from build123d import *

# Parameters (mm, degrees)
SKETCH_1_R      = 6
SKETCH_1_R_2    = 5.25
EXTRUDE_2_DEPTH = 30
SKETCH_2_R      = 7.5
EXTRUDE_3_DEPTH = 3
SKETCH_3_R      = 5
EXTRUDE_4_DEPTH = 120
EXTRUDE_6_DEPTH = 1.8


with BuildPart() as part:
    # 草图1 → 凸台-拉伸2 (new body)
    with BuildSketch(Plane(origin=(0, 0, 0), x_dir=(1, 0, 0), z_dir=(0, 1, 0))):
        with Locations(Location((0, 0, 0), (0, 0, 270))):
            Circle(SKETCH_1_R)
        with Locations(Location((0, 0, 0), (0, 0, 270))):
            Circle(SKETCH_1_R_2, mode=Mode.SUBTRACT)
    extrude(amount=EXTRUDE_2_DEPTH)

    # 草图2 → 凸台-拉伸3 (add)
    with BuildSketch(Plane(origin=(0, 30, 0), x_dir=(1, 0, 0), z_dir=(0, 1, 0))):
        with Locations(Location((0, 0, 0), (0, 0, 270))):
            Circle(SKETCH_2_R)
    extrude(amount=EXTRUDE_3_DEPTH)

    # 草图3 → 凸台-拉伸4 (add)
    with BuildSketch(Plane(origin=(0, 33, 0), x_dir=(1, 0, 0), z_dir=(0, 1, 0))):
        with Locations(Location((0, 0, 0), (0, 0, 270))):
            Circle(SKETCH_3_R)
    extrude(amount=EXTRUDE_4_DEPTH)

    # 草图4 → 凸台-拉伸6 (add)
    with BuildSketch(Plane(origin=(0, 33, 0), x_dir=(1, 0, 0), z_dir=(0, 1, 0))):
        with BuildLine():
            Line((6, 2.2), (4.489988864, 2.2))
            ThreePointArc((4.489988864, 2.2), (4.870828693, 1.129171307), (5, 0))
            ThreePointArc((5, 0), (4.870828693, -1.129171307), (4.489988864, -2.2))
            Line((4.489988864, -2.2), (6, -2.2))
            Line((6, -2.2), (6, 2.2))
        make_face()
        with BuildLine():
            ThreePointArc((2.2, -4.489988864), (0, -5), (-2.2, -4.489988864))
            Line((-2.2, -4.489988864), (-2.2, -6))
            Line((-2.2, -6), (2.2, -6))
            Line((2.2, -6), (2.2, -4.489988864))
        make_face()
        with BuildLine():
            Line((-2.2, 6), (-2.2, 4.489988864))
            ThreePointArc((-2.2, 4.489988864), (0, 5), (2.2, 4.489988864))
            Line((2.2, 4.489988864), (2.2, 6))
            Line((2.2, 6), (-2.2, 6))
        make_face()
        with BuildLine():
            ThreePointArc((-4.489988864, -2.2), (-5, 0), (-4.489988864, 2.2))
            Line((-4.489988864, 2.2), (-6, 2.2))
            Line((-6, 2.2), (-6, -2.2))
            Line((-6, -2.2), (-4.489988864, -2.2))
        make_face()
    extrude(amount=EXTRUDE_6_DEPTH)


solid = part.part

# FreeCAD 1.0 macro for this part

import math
import FreeCAD as App
import Part
import Sketcher

doc = App.newDocument("Part")
body = doc.addObject("PartDesign::Body", "Body")

# Sketch on XZ plane
sketch1 = body.newObject("Sketcher::SketchObject", "Sketch")
sketch1.AttachmentSupport = (doc.getObject("XZ_Plane"), [""])
sketch1.MapMode = "FlatFace"
sketch1.addGeometry(Part.Circle(App.Vector(0, 0, 0), App.Vector(0, 0, 1), 6), False)
sketch1.addGeometry(Part.Circle(App.Vector(0, 0, 0), App.Vector(0, 0, 1), 5), False)
sketch1.addConstraint(Sketcher.Constraint("Coincident", 0, 3, -1, 1))
sketch1.addConstraint(Sketcher.Constraint("Coincident", 1, 3, -1, 1))
sketch1.addConstraint(Sketcher.Constraint("Diameter", 0, 12.0))
sketch1.addConstraint(Sketcher.Constraint("Diameter", 1, 10.5))
pad1 = body.newObject("PartDesign::Pad", "Pad")
pad1.Profile = sketch1
pad1.Length = 30
pad1.Reversed = True

# Sketch on XZ plane
sketch2 = body.newObject("Sketcher::SketchObject", "Sketch001")
sketch2.AttachmentSupport = (doc.getObject("XZ_Plane"), [""])
sketch2.MapMode = "FlatFace"
sketch2.AttachmentOffset = App.Placement(App.Vector(0, 0, -30), App.Rotation())
sketch2.addGeometry(Part.Circle(App.Vector(0, 0, 0), App.Vector(0, 0, 1), 8), False)
sketch2.addConstraint(Sketcher.Constraint("Coincident", 0, 3, -1, 1))
sketch2.addConstraint(Sketcher.Constraint("Diameter", 0, 15.0))
pad2 = body.newObject("PartDesign::Pad", "Pad001")
pad2.Profile = sketch2
pad2.Length = 3
pad2.Reversed = True

# Sketch on XZ plane
sketch3 = body.newObject("Sketcher::SketchObject", "Sketch002")
sketch3.AttachmentSupport = (doc.getObject("XZ_Plane"), [""])
sketch3.MapMode = "FlatFace"
sketch3.AttachmentOffset = App.Placement(App.Vector(0, 0, -33), App.Rotation())
sketch3.addGeometry(Part.Circle(App.Vector(0, 0, 0), App.Vector(0, 0, 1), 5), False)
sketch3.addConstraint(Sketcher.Constraint("Coincident", 0, 3, -1, 1))
sketch3.addConstraint(Sketcher.Constraint("Diameter", 0, 10.0))
pad3 = body.newObject("PartDesign::Pad", "Pad002")
pad3.Profile = sketch3
pad3.Length = 120
pad3.Reversed = True

# Sketch on XZ plane
sketch4 = body.newObject("Sketcher::SketchObject", "Sketch003")
sketch4.AttachmentSupport = (doc.getObject("XZ_Plane"), [""])
sketch4.MapMode = "FlatFace"
sketch4.AttachmentOffset = App.Placement(App.Vector(0, 0, -33), App.Rotation())
sketch4.addGeometry(Part.LineSegment(App.Vector(6, -2.2, 0), App.Vector(4.5, -2.2, 0)), False)
sketch4.addGeometry(Part.ArcOfCircle(Part.Circle(App.Vector(0, 0, 0), App.Vector(0, 0, 1), 5), math.radians(-26), math.radians(0)), False)
sketch4.addGeometry(Part.ArcOfCircle(Part.Circle(App.Vector(0, 0, 0), App.Vector(0, 0, 1), 5), math.radians(0), math.radians(26)), False)
sketch4.addGeometry(Part.LineSegment(App.Vector(4.5, 2.2, 0), App.Vector(6, 2.2, 0)), False)
sketch4.addGeometry(Part.LineSegment(App.Vector(6, 2.2, 0), App.Vector(6, -2.2, 0)), False)
sketch4.addGeometry(Part.ArcOfCircle(Part.Circle(App.Vector(0, 0, 0), App.Vector(0, 0, 1), 5), math.radians(64), math.radians(116)), False)
sketch4.addGeometry(Part.LineSegment(App.Vector(-2.2, 4.5, 0), App.Vector(-2.2, 6, 0)), False)
sketch4.addGeometry(Part.LineSegment(App.Vector(-2.2, 6, 0), App.Vector(2.2, 6, 0)), False)
sketch4.addGeometry(Part.LineSegment(App.Vector(2.2, 6, 0), App.Vector(2.2, 4.5, 0)), False)
sketch4.addGeometry(Part.LineSegment(App.Vector(-2.2, -6, 0), App.Vector(-2.2, -4.5, 0)), False)
sketch4.addGeometry(Part.ArcOfCircle(Part.Circle(App.Vector(0, 0, 0), App.Vector(0, 0, 1), 5), math.radians(-116), math.radians(-64)), False)
sketch4.addGeometry(Part.LineSegment(App.Vector(2.2, -4.5, 0), App.Vector(2.2, -6, 0)), False)
sketch4.addGeometry(Part.LineSegment(App.Vector(2.2, -6, 0), App.Vector(-2.2, -6, 0)), False)
sketch4.addGeometry(Part.ArcOfCircle(Part.Circle(App.Vector(0, 0, 0), App.Vector(0, 0, 1), 5), math.radians(154), math.radians(206)), False)
sketch4.addGeometry(Part.LineSegment(App.Vector(-4.5, -2.2, 0), App.Vector(-6, -2.2, 0)), False)
sketch4.addGeometry(Part.LineSegment(App.Vector(-6, -2.2, 0), App.Vector(-6, 2.2, 0)), False)
sketch4.addGeometry(Part.LineSegment(App.Vector(-6, 2.2, 0), App.Vector(-4.5, 2.2, 0)), False)
sketch4.addConstraint(Sketcher.Constraint("Coincident", 0, 2, 1, 1))
sketch4.addConstraint(Sketcher.Constraint("Tangent", 1, 2, 2, 1))
sketch4.addConstraint(Sketcher.Constraint("Coincident", 2, 2, 3, 1))
sketch4.addConstraint(Sketcher.Constraint("Coincident", 3, 2, 4, 1))
sketch4.addConstraint(Sketcher.Constraint("Coincident", 4, 2, 0, 1))
sketch4.addConstraint(Sketcher.Constraint("Coincident", 5, 2, 6, 1))
sketch4.addConstraint(Sketcher.Constraint("Coincident", 6, 2, 7, 1))
sketch4.addConstraint(Sketcher.Constraint("Coincident", 7, 2, 8, 1))
sketch4.addConstraint(Sketcher.Constraint("Coincident", 8, 2, 5, 1))
sketch4.addConstraint(Sketcher.Constraint("Coincident", 9, 2, 10, 1))
sketch4.addConstraint(Sketcher.Constraint("Coincident", 10, 2, 11, 1))
sketch4.addConstraint(Sketcher.Constraint("Coincident", 11, 2, 12, 1))
sketch4.addConstraint(Sketcher.Constraint("Coincident", 12, 2, 9, 1))
sketch4.addConstraint(Sketcher.Constraint("Coincident", 13, 2, 14, 1))
sketch4.addConstraint(Sketcher.Constraint("Coincident", 14, 2, 15, 1))
sketch4.addConstraint(Sketcher.Constraint("Coincident", 15, 2, 16, 1))
sketch4.addConstraint(Sketcher.Constraint("Coincident", 16, 2, 13, 1))
sketch4.addConstraint(Sketcher.Constraint("Horizontal", 0))
sketch4.addConstraint(Sketcher.Constraint("Horizontal", 3))
sketch4.addConstraint(Sketcher.Constraint("Vertical", 4))
sketch4.addConstraint(Sketcher.Constraint("Vertical", 6))
sketch4.addConstraint(Sketcher.Constraint("Horizontal", 7))
sketch4.addConstraint(Sketcher.Constraint("Vertical", 8))
sketch4.addConstraint(Sketcher.Constraint("Vertical", 9))
sketch4.addConstraint(Sketcher.Constraint("Vertical", 11))
sketch4.addConstraint(Sketcher.Constraint("Horizontal", 12))
sketch4.addConstraint(Sketcher.Constraint("Horizontal", 14))
sketch4.addConstraint(Sketcher.Constraint("Vertical", 15))
sketch4.addConstraint(Sketcher.Constraint("Horizontal", 16))
sketch4.addConstraint(Sketcher.Constraint("Coincident", 1, 3, -1, 1))
sketch4.addConstraint(Sketcher.Constraint("Coincident", 5, 3, -1, 1))
sketch4.addConstraint(Sketcher.Constraint("Coincident", 10, 3, -1, 1))
sketch4.addConstraint(Sketcher.Constraint("Coincident", 13, 3, -1, 1))
sketch4.addConstraint(Sketcher.Constraint("Equal", 1, 2))
sketch4.addConstraint(Sketcher.Constraint("Equal", 2, 5))
sketch4.addConstraint(Sketcher.Constraint("Equal", 5, 10))
sketch4.addConstraint(Sketcher.Constraint("Equal", 10, 13))
sketch4.addConstraint(Sketcher.Constraint("Symmetric", 6, 2, 11, 2, -1, 1))
sketch4.addConstraint(Sketcher.Constraint("Symmetric", 3, 2, 14, 2, -1, 1))
sketch4.addConstraint(Sketcher.Constraint("PointOnObject", 1, 2, -1))
sketch4.addConstraint(Sketcher.Constraint("Horizontal", 5, 2, 8, 2))
sketch4.addConstraint(Sketcher.Constraint("Horizontal", 9, 2, 10, 2))
sketch4.addConstraint(Sketcher.Constraint("Horizontal", 4, 2, 13, 2))
sketch4.addConstraint(Sketcher.Constraint("Horizontal", 3, 2, 15, 2))
sketch4.addConstraint(Sketcher.Constraint("Equal", 12, 4))
sketch4.addConstraint(Sketcher.Constraint("Equal", 16, 6))
sketch4.addConstraint(Sketcher.Constraint("Radius", 1, 5.0))
sketch4.addConstraint(Sketcher.Constraint("DistanceX", 7, 1, 7, 2, 4.4))
sketch4.addConstraint(Sketcher.Constraint("DistanceX", -1, 1, 3, 2, 6.0))
pad4 = body.newObject("PartDesign::Pad", "Pad003")
pad4.Profile = sketch4
pad4.Length = 1.8
pad4.Reversed = True

doc.recompute()
